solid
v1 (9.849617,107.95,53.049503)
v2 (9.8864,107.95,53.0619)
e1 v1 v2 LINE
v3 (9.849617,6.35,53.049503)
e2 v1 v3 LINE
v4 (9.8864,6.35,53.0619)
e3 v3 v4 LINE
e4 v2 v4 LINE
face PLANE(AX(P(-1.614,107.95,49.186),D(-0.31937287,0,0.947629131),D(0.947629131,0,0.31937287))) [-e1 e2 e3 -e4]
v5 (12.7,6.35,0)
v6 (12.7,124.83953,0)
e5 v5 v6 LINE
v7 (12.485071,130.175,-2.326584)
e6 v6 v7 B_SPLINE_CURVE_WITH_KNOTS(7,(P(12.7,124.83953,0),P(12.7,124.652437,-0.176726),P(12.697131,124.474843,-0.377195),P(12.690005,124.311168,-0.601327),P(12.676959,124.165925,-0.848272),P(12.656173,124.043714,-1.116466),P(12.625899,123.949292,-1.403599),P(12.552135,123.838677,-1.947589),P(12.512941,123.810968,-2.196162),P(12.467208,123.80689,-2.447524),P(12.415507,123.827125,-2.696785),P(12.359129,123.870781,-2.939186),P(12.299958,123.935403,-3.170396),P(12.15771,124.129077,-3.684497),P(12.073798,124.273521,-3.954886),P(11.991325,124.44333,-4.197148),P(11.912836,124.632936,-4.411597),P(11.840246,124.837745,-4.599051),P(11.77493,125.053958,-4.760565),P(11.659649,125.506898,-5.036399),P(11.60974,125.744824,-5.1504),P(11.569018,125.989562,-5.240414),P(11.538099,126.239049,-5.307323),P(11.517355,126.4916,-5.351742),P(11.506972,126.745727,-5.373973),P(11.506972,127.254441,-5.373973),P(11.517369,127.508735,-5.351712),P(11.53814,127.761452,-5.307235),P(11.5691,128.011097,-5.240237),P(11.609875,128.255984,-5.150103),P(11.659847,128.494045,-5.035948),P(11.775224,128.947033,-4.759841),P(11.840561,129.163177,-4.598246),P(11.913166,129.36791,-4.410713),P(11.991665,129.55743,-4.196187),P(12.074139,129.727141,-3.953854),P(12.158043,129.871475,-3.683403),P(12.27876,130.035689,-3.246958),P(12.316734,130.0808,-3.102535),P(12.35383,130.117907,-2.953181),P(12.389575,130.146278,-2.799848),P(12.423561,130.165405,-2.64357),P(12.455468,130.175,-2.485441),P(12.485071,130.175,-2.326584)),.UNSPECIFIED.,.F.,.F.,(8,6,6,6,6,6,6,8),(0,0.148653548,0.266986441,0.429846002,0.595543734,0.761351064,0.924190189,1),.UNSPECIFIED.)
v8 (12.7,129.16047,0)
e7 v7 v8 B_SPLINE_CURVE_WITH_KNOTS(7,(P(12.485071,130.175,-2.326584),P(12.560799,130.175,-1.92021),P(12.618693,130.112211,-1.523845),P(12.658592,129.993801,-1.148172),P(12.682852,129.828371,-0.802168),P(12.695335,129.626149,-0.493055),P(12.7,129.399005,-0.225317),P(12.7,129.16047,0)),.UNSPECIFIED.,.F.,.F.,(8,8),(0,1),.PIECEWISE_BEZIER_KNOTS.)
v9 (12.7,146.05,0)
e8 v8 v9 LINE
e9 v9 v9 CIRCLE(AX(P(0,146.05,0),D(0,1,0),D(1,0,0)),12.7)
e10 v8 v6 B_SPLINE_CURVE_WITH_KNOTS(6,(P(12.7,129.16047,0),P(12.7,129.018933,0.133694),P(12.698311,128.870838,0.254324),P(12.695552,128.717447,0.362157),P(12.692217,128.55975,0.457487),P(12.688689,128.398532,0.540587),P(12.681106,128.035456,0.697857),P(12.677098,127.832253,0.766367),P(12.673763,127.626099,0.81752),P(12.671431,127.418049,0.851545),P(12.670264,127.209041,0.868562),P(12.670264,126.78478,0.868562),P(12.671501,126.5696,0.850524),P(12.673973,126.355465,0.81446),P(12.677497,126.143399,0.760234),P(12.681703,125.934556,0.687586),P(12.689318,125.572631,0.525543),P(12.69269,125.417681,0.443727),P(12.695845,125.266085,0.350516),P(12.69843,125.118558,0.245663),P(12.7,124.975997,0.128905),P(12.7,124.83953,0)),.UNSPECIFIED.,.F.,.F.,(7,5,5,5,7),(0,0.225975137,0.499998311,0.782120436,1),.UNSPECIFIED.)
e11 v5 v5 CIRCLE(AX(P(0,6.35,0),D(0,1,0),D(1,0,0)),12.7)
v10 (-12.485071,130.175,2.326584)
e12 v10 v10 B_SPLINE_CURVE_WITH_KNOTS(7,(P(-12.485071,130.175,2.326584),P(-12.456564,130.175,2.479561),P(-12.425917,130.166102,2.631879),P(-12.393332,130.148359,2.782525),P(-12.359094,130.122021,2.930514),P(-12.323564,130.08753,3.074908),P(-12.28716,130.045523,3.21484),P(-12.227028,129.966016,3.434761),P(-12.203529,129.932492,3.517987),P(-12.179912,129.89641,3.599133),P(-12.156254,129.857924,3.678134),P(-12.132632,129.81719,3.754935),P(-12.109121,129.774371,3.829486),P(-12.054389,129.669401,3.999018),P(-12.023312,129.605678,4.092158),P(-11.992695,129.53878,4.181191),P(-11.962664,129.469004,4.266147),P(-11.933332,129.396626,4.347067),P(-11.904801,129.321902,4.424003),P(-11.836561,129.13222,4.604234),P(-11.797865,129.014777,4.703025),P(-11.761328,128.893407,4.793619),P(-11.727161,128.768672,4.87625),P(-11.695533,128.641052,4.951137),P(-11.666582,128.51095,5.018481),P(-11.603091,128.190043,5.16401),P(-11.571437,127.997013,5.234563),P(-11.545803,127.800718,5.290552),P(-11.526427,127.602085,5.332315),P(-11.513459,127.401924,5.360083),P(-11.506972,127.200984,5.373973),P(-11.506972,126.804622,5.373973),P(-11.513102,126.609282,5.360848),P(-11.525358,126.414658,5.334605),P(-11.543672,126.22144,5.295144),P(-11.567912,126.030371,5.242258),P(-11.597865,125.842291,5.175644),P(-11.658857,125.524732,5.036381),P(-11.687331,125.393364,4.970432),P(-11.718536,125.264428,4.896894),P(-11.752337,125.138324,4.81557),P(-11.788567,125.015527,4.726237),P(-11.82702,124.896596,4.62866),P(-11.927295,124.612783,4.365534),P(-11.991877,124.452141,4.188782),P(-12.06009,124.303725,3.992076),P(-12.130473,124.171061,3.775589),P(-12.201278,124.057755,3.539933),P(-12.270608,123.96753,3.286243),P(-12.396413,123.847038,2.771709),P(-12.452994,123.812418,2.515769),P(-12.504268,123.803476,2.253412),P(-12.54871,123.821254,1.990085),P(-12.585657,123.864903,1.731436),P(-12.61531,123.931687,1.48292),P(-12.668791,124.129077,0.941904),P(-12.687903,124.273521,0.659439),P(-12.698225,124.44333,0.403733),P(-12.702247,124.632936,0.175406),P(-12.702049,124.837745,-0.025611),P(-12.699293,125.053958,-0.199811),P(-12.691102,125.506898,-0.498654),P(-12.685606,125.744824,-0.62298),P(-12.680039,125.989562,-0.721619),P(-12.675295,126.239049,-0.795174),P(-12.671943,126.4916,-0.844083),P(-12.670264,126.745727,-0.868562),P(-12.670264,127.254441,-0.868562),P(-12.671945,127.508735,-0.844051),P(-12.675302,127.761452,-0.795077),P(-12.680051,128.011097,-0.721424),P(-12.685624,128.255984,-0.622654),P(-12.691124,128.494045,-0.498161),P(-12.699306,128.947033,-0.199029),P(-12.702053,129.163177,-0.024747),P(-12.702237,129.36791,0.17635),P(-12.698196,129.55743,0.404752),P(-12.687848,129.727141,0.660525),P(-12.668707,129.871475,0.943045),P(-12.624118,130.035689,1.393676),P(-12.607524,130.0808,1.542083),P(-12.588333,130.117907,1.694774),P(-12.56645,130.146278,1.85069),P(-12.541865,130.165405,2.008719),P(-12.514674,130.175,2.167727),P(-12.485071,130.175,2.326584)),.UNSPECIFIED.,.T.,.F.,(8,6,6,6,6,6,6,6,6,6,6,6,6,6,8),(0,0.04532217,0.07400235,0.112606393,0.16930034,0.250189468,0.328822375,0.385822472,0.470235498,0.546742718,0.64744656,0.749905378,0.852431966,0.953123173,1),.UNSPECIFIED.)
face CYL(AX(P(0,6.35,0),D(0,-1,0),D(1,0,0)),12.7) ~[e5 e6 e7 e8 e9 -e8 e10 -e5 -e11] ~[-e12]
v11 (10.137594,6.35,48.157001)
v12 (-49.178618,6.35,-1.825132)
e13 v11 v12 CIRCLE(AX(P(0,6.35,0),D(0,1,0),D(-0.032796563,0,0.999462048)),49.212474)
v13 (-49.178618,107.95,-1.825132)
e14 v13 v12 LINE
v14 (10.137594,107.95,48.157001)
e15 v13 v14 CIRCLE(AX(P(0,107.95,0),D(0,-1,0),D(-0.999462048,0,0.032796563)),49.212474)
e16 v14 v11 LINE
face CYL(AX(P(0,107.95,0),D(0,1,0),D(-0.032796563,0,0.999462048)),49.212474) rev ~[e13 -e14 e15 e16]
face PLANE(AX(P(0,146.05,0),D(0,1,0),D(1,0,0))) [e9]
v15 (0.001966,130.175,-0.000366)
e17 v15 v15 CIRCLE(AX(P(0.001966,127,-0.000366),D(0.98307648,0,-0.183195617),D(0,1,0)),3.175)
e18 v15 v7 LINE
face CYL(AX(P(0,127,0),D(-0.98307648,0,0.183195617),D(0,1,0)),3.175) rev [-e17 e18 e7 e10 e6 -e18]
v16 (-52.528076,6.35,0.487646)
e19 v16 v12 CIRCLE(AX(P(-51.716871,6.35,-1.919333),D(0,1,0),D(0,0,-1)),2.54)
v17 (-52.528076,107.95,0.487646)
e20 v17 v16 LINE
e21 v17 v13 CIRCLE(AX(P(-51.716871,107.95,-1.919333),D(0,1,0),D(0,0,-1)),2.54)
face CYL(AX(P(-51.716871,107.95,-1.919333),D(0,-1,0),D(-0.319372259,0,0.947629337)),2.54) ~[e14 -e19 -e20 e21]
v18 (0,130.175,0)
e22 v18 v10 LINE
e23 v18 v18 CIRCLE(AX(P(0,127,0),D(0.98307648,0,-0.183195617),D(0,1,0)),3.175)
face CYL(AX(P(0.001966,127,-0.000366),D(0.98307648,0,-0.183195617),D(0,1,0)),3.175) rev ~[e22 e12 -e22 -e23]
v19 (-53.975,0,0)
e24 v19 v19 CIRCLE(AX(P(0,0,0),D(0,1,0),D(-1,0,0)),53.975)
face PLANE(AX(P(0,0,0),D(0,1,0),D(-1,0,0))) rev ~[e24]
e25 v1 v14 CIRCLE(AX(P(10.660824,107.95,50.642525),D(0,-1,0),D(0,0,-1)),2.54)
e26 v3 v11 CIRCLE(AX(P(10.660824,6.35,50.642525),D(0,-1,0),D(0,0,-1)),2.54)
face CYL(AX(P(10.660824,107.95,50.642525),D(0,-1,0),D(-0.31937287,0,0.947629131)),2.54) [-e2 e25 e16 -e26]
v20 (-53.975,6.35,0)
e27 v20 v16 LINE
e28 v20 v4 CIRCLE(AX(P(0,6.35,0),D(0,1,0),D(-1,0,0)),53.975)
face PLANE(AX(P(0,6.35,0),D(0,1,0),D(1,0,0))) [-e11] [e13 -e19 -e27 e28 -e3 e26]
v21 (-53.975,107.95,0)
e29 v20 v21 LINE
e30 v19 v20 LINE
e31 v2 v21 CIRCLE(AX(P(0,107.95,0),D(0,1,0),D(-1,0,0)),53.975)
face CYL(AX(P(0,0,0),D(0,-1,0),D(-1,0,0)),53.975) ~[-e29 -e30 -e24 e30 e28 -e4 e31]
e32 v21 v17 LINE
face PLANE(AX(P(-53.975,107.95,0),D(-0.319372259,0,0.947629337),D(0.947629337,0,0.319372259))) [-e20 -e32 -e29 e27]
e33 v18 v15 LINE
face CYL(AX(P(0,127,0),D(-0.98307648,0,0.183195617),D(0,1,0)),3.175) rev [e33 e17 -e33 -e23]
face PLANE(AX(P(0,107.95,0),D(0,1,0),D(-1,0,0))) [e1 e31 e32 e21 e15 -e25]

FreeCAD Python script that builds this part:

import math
import FreeCAD as App
import Part
import Sketcher
from FreeCAD import Vector
Q = App.Units.Quantity


def edges_at(feature, points):
    """Names of the edges that pass closest to the given points."""
    edges = feature.Shape.Edges
    near = lambda p: min(range(len(edges)), key=lambda i: edges[i].distToShape(Part.Vertex(*p))[0])
    return sorted({f"Edge{near(p) + 1}" for p in points})

doc = App.newDocument("Part")
params = doc.addObject("Spreadsheet::Sheet", "Params")
for row, (alias, value) in enumerate([
    ("sketch1_diameter", "4.25 in"),
    ("pad1_length", "4.25 in"),
    ("sketch2_radius", "1.9375 in"),
    ("sketch2_radius2", "2.125 in"),
    ("pocket1_length", "4 in"),
    ("sketch3_diameter", "1 in"),
    ("pad2_length", "5.5 in"),
    ("sketch4_diameter", "0.25 in"),
    ("sketch5_diameter", "0.25 in"),
    ("pocket3_length", "5.5 in"),
    ("fillet_radius", "0.1 in"),
], start=1):
    params.set(f"A{row}", alias)
    params.set(f"B{row}", "=" + value)
    params.setAlias(f"B{row}", alias)

body = doc.addObject("PartDesign::Body", "Body")

# Sketch on XZ plane
sketch1 = body.newObject("Sketcher::SketchObject", "Sketch")
sketch1.AttachmentSupport = (doc.getObject("XZ_Plane"), [""])
sketch1.MapMode = "FlatFace"
sketch1.addGeometry(Part.Circle(Vector(0, 0, 0), Vector(0, 0, 1), 54), False)
sketch1.addConstraint(Sketcher.Constraint("Coincident", 0, 3, -1, 1))
sketch1.addConstraint(Sketcher.Constraint("Diameter", 0, Q("4.25 in")))
sketch1.setExpression("Constraints[1]", "Params.sketch1_diameter")
pad1 = body.newObject("PartDesign::Pad", "Pad")
pad1.Profile = sketch1
pad1.setExpression("Length", "Params.pad1_length")
pad1.Reversed = True

# Sketch on XZ plane
sketch2 = body.newObject("Sketcher::SketchObject", "Sketch001")
sketch2.AttachmentSupport = (doc.getObject("XZ_Plane"), [""])
sketch2.MapMode = "FlatFace"
sketch2.AttachmentOffset = App.Placement(Vector(0, 0, -4.25 * 25.4), App.Rotation())
sketch2.addGeometry(Part.LineSegment(Vector(10, 53, 0), Vector(-2, 49, 0)), False)
sketch2.addGeometry(Part.ArcOfCircle(Part.Circle(Vector(0, 0, 0), Vector(0, 0, 1), 49), math.radians(178), math.radians(452)), False)
sketch2.addGeometry(Part.LineSegment(Vector(-49, 2, 0), Vector(-54, 0, 0)), False)
sketch2.addGeometry(Part.ArcOfCircle(Part.Circle(Vector(0, 0, 0), Vector(0, 0, 1), 54), math.radians(79), math.radians(180)), False)
sketch2.addConstraint(Sketcher.Constraint("Coincident", 0, 2, 1, 2))
sketch2.addConstraint(Sketcher.Constraint("Coincident", 1, 1, 2, 1))
sketch2.addConstraint(Sketcher.Constraint("Coincident", 2, 2, 3, 2))
sketch2.addConstraint(Sketcher.Constraint("Coincident", 3, 1, 0, 1))
sketch2.addConstraint(Sketcher.Constraint("Coincident", 1, 3, -1, 1))
sketch2.addConstraint(Sketcher.Constraint("Coincident", 3, 3, -1, 1))
sketch2.addConstraint(Sketcher.Constraint("PointOnObject", 2, 2, -1))
sketch2.addConstraint(Sketcher.Constraint("Parallel", 0, 2))
sketch2.addConstraint(Sketcher.Constraint("Radius", 1, Q("1.9375 in")))
sketch2.addConstraint(Sketcher.Constraint("Radius", 3, Q("2.125 in")))
sketch2.addConstraint(Sketcher.Constraint("Distance", 0, Q("0.4778 in")))
sketch2.addConstraint(Sketcher.Constraint("DistanceY", 0, 2, 3, 1, Q("0.1526 in")))
sketch2.setExpression("Constraints[8]", "Params.sketch2_radius")
sketch2.setExpression("Constraints[9]", "Params.sketch2_radius2")
pocket1 = body.newObject("PartDesign::Pocket", "Pocket")
pocket1.Profile = sketch2
pocket1.setExpression("Length", "Params.pocket1_length")
pocket1.Reversed = True

# Sketch on XZ plane
sketch3 = body.newObject("Sketcher::SketchObject", "Sketch002")
sketch3.AttachmentSupport = (doc.getObject("XZ_Plane"), [""])
sketch3.MapMode = "FlatFace"
sketch3.AttachmentOffset = App.Placement(Vector(0, 0, -0.25 * 25.4), App.Rotation())
sketch3.addGeometry(Part.Circle(Vector(0, 0, 0), Vector(0, 0, 1), 13), False)
sketch3.addConstraint(Sketcher.Constraint("Coincident", 0, 3, -1, 1))
sketch3.addConstraint(Sketcher.Constraint("Diameter", 0, Q("1 in")))
sketch3.setExpression("Constraints[1]", "Params.sketch3_diameter")
pad2 = body.newObject("PartDesign::Pad", "Pad001")
pad2.Profile = sketch3
pad2.setExpression("Length", "Params.pad2_length")
pad2.Reversed = True

# Sketch on an angled plane
sketch4 = body.newObject("Sketcher::SketchObject", "Sketch003")
sketch4.Placement = App.Placement(Vector(0, 6.35, 0), App.Rotation(Vector(0, 1, 0), Vector(0.183195617, 0, 0.98307648), Vector(0.98307648, 0, -0.183195617), "ZXY"))
sketch4.addGeometry(Part.Circle(Vector(120.7, 0, 0), Vector(0, 0, 1), 3.2), False)
sketch4.addConstraint(Sketcher.Constraint("PointOnObject", 0, 3, -1))
sketch4.addConstraint(Sketcher.Constraint("Diameter", 0, Q("0.25 in")))
sketch4.addConstraint(Sketcher.Constraint("DistanceX", -1, 1, 0, 3, Q("4.75 in")))
sketch4.setExpression("Constraints[1]", "Params.sketch4_diameter")
pocket2 = body.newObject("PartDesign::Pocket", "Pocket001")
pocket2.Profile = sketch4
pocket2.Type = "ThroughAll"
pocket2.Reversed = True

# Sketch on an angled plane
sketch5 = body.newObject("Sketcher::SketchObject", "Sketch004")
sketch5.Placement = App.Placement(Vector(0, 6.35, 0), App.Rotation(Vector(0, 1, 0), Vector(0.183195617, 0, 0.98307648), Vector(0.98307648, 0, -0.183195617), "ZXY"))
sketch5.addGeometry(Part.Circle(Vector(120.7, 0, 0), Vector(0, 0, 1), 3.2), False)
sketch5.addConstraint(Sketcher.Constraint("PointOnObject", 0, 3, -1))
sketch5.addConstraint(Sketcher.Constraint("Diameter", 0, Q("0.25 in")))
sketch5.addConstraint(Sketcher.Constraint("DistanceX", -1, 1, 0, 3, Q("4.75 in")))
sketch5.setExpression("Constraints[1]", "Params.sketch5_diameter")
pocket3 = body.newObject("PartDesign::Pocket", "Pocket002")
pocket3.Profile = sketch5
pocket3.setExpression("Length", "Params.pocket3_length")
doc.recompute()

fillet = body.newObject("PartDesign::Fillet", "Fillet")
fillet.Base = (pocket3, edges_at(pocket3, [(-49.186, 57.15, 1.614), (-1.614, 57.15, 49.186)]))
fillet.setExpression("Radius", "Params.fillet_radius")

doc.recompute()
